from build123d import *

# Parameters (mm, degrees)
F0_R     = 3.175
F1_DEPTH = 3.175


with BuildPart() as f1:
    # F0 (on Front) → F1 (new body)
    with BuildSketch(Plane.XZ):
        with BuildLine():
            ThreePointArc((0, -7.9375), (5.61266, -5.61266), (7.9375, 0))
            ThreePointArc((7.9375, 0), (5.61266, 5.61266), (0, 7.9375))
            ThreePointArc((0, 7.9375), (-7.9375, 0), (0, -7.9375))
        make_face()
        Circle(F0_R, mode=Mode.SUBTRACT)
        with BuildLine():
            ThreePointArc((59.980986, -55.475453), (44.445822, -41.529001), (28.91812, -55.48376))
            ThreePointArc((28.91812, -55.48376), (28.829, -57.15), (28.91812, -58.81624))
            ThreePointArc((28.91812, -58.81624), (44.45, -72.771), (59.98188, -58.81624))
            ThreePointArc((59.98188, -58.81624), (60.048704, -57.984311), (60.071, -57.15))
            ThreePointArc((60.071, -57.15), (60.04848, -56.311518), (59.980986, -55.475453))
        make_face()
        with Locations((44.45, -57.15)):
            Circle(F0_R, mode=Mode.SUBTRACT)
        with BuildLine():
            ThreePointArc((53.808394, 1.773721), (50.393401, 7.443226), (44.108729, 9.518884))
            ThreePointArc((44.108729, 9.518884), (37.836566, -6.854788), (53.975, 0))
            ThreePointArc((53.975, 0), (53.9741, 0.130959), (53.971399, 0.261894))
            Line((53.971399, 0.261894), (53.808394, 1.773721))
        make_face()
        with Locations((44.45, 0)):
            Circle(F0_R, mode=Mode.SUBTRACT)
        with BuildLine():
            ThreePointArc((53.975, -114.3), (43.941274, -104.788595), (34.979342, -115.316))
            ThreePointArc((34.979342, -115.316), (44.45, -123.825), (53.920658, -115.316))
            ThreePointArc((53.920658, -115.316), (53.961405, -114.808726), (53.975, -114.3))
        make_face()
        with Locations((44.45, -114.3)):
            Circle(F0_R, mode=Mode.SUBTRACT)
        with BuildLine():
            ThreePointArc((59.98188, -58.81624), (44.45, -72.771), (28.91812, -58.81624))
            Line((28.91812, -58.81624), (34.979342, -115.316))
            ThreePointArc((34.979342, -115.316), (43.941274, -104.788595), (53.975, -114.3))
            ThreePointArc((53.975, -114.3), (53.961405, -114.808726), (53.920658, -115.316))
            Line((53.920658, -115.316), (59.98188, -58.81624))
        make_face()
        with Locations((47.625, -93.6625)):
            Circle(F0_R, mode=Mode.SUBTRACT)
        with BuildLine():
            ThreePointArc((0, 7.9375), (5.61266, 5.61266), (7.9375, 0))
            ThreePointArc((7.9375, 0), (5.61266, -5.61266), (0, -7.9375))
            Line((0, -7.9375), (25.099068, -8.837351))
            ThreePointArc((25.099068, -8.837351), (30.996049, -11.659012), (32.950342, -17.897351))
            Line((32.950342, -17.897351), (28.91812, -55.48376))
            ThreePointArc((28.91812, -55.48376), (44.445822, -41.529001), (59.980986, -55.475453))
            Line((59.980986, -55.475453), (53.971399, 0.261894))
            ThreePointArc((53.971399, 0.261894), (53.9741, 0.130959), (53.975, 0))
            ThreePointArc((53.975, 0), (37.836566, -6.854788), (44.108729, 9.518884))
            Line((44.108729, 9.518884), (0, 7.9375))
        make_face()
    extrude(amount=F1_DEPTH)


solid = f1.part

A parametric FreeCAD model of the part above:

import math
import FreeCAD as App
import Part
import Sketcher

V = App.Vector
Q = App.Units.Quantity

doc = App.newDocument("Part")
body = doc.addObject("PartDesign::Body", "Body")

# Sketch on XZ plane
sketch1 = body.newObject("Sketcher::SketchObject", "Sketch")
sketch1.AttachmentSupport = (doc.getObject("XZ_Plane"), [""])
sketch1.MapMode = "FlatFace"
sketch1.addGeometry([
    Part.ArcOfCircle(Part.Circle(V(0, 0, 0), V(0, 0, 1), 7.9375), math.radians(90), math.radians(270)),  # 0
    Part.LineSegment(V(0, -7.9375, 0), V(25.099068, -8.837351, 0)),  # 1
    Part.ArcOfCircle(Part.Circle(V(24.805576, -17.023592, 0), V(0, 0, 1), 8.1915), math.radians(-6.123195), math.radians(87.946718)),  # 2
    Part.LineSegment(V(32.950342, -17.897351, 0), V(28.91812, -55.48376, 0)),  # 3
    Part.ArcOfCircle(Part.Circle(V(44.450062, -57.15, 0), V(0, 0, 1), 15.621062), math.radians(173.876826), math.radians(186.123174)),  # 4
    Part.LineSegment(V(28.91812, -58.81624, 0), V(34.979342, -115.316, 0)),  # 5
    Part.ArcOfCircle(Part.Circle(V(44.45, -114.3, 0), V(0, 0, 1), 9.525), math.radians(-173.876803), math.radians(-6.123197)),  # 6
    Part.LineSegment(V(53.920658, -115.316, 0), V(59.98188, -58.81624, 0)),  # 7
    Part.ArcOfCircle(Part.Circle(V(44.449883, -57.149997, 0), V(0, 0, 1), 15.621117), math.radians(-6.123164), math.radians(-0.000011)),  # 8
    Part.ArcOfCircle(Part.Circle(V(44.449844, -57.150011, 0), V(0, 0, 1), 15.621156), math.radians(0.000039), math.radians(6.153821)),  # 9
    Part.LineSegment(V(59.980986, -55.475453, 0), V(53.971399, 0.261894, 0)),  # 10
    Part.LineSegment(V(53.971399, 0.261894, 0), V(53.808394, 1.773721, 0)),  # 11
    Part.ArcOfCircle(Part.Circle(V(44.450001, 0.000001, 0), V(0, 0, 1), 9.524999), math.radians(10.732114), math.radians(92.053296)),  # 12
    Part.LineSegment(V(44.108729, 9.518884, 0), V(0, 7.9375, 0)),  # 13
    Part.Circle(V(0, 0, 0), V(0, 0, 1), 3.175),  # 14
    Part.Circle(V(44.45, 0, 0), V(0, 0, 1), 3.175),  # 15
    Part.Circle(V(44.45, -57.15, 0), V(0, 0, 1), 3.175),  # 16
    Part.Circle(V(44.45, -114.3, 0), V(0, 0, 1), 3.175),  # 17
    Part.Circle(V(47.625, -93.6625, 0), V(0, 0, 1), 3.175),  # 18
], False)
sketch1.addConstraint([
    Sketcher.Constraint("Coincident", 0, 2, 1, 1),
    Sketcher.Constraint("Coincident", 1, 2, 2, 2),
    Sketcher.Constraint("Coincident", 2, 1, 3, 1),
    Sketcher.Constraint("Coincident", 3, 2, 4, 1),
    Sketcher.Constraint("Coincident", 4, 2, 5, 1),
    Sketcher.Constraint("Coincident", 5, 2, 6, 1),
    Sketcher.Constraint("Coincident", 6, 2, 7, 1),
    Sketcher.Constraint("Coincident", 7, 2, 8, 1),
    Sketcher.Constraint("Coincident", 8, 2, 9, 1),
    Sketcher.Constraint("Coincident", 9, 2, 10, 1),
    Sketcher.Constraint("Coincident", 10, 2, 11, 1),
    Sketcher.Constraint("Coincident", 11, 2, 12, 1),
    Sketcher.Constraint("Coincident", 12, 2, 13, 1),
    Sketcher.Constraint("Coincident", 13, 2, 0, 1),
    Sketcher.Constraint("Coincident", 0, 3, -1, 1),
    Sketcher.Constraint("Coincident", 14, 3, -1, 1),
    Sketcher.Constraint("Coincident", 15, 3, 12, 3),
    Sketcher.Constraint("Coincident", 17, 3, 6, 3),
    Sketcher.Constraint("PointOnObject", 12, 3, -1),
    Sketcher.Constraint("PointOnObject", 0, 2, -2),
    Sketcher.Constraint("PointOnObject", 13, 2, -2),
    Sketcher.Constraint("Diameter", 14, Q("0.25 in")),
    Sketcher.Constraint("Diameter", 15, Q("0.25 in")),
    Sketcher.Constraint("Diameter", 16, Q("0.25 in")),
    Sketcher.Constraint("Diameter", 17, Q("0.25 in")),
    Sketcher.Constraint("Diameter", 18, Q("0.25 in")),
    Sketcher.Constraint("Radius", 0, Q("0.3125 in")),
    Sketcher.Constraint("Radius", 6, Q("0.375 in")),
    Sketcher.Constraint("Radius", 12, Q("0.3749999 in")),
    Sketcher.Constraint("DistanceY", 6, 3, -1, 1, Q("4.5 in")),
    Sketcher.Constraint("Radius", 2, Q("0.3225 in")),
    Sketcher.Constraint("DistanceY", 4, 3, -1, 1, Q("2.25 in")),
    Sketcher.Constraint("DistanceX", -1, 1, 6, 3, Q("1.75 in")),
    Sketcher.Constraint("DistanceY", 8, 3, -1, 1, Q("2.2499999 in")),
    Sketcher.Constraint("DistanceX", -1, 1, 12, 3, Q("1.75 in")),
    Sketcher.Constraint("DistanceX", -1, 1, 16, 3, Q("1.75 in")),
    Sketcher.Constraint("DistanceY", 16, 3, -1, 1, Q("2.25 in")),
    Sketcher.Constraint("DistanceY", 5, 2, -1, 1, Q("4.54 in")),
    Sketcher.Constraint("DistanceY", 6, 2, -1, 1, Q("4.54 in")),
    Sketcher.Constraint("DistanceY", 8, 2, -1, 1, Q("2.25 in")),
    Sketcher.Constraint("DistanceX", -1, 1, 18, 3, Q("1.875 in")),
    Sketcher.Constraint("DistanceY", 18, 3, -1, 1, Q("3.6875 in")),
    Sketcher.Constraint("DistanceX", -1, 1, 8, 2, Q("2.365 in")),
    Sketcher.Constraint("DistanceY", 3, 2, -1, 1, Q("2.1844 in")),
    Sketcher.Constraint("DistanceY", 4, 2, -1, 1, Q("2.3156 in")),
    Sketcher.Constraint("DistanceY", 7, 2, -1, 1, Q("2.3156 in")),
    Sketcher.Constraint("Radius", 4, Q("15.621062 mm")),
    Sketcher.Constraint("Radius", 8, Q("15.621117 mm")),
    Sketcher.Constraint("Radius", 9, Q("15.621156 mm")),
    Sketcher.Constraint("DistanceY", 2, 1, 2, 3, Q("0.0344 in")),
    Sketcher.Constraint("DistanceX", -1, 1, 10, 2, Q("53.971399 mm")),
    Sketcher.Constraint("DistanceY", 2, 1, 1, 2, Q("9.06 mm")),
    Sketcher.Constraint("Distance", 5, Q("56.82395 mm")),
    Sketcher.Constraint("Distance", 11, Q("1.520589 mm")),
    Sketcher.Constraint("DistanceY", 2, 3, -1, 1, Q("17.023592 mm")),
    Sketcher.Constraint("DistanceY", 9, 3, -1, 1, Q("57.150011 mm")),
    Sketcher.Constraint("DistanceY", -1, 1, 11, 2, Q("1.773721 mm")),
    Sketcher.Constraint("DistanceX", -1, 1, 12, 2, Q("44.108729 mm")),
    Sketcher.Constraint("DistanceX", 2, 3, 9, 3, Q("19.644269 mm")),
    Sketcher.Constraint("Distance", 10, Q("56.060387 mm")),
])
pad1 = body.newObject("PartDesign::Pad", "Pad")
pad1.Profile = sketch1
pad1.Length = Q("0.125 in")

doc.recompute()
